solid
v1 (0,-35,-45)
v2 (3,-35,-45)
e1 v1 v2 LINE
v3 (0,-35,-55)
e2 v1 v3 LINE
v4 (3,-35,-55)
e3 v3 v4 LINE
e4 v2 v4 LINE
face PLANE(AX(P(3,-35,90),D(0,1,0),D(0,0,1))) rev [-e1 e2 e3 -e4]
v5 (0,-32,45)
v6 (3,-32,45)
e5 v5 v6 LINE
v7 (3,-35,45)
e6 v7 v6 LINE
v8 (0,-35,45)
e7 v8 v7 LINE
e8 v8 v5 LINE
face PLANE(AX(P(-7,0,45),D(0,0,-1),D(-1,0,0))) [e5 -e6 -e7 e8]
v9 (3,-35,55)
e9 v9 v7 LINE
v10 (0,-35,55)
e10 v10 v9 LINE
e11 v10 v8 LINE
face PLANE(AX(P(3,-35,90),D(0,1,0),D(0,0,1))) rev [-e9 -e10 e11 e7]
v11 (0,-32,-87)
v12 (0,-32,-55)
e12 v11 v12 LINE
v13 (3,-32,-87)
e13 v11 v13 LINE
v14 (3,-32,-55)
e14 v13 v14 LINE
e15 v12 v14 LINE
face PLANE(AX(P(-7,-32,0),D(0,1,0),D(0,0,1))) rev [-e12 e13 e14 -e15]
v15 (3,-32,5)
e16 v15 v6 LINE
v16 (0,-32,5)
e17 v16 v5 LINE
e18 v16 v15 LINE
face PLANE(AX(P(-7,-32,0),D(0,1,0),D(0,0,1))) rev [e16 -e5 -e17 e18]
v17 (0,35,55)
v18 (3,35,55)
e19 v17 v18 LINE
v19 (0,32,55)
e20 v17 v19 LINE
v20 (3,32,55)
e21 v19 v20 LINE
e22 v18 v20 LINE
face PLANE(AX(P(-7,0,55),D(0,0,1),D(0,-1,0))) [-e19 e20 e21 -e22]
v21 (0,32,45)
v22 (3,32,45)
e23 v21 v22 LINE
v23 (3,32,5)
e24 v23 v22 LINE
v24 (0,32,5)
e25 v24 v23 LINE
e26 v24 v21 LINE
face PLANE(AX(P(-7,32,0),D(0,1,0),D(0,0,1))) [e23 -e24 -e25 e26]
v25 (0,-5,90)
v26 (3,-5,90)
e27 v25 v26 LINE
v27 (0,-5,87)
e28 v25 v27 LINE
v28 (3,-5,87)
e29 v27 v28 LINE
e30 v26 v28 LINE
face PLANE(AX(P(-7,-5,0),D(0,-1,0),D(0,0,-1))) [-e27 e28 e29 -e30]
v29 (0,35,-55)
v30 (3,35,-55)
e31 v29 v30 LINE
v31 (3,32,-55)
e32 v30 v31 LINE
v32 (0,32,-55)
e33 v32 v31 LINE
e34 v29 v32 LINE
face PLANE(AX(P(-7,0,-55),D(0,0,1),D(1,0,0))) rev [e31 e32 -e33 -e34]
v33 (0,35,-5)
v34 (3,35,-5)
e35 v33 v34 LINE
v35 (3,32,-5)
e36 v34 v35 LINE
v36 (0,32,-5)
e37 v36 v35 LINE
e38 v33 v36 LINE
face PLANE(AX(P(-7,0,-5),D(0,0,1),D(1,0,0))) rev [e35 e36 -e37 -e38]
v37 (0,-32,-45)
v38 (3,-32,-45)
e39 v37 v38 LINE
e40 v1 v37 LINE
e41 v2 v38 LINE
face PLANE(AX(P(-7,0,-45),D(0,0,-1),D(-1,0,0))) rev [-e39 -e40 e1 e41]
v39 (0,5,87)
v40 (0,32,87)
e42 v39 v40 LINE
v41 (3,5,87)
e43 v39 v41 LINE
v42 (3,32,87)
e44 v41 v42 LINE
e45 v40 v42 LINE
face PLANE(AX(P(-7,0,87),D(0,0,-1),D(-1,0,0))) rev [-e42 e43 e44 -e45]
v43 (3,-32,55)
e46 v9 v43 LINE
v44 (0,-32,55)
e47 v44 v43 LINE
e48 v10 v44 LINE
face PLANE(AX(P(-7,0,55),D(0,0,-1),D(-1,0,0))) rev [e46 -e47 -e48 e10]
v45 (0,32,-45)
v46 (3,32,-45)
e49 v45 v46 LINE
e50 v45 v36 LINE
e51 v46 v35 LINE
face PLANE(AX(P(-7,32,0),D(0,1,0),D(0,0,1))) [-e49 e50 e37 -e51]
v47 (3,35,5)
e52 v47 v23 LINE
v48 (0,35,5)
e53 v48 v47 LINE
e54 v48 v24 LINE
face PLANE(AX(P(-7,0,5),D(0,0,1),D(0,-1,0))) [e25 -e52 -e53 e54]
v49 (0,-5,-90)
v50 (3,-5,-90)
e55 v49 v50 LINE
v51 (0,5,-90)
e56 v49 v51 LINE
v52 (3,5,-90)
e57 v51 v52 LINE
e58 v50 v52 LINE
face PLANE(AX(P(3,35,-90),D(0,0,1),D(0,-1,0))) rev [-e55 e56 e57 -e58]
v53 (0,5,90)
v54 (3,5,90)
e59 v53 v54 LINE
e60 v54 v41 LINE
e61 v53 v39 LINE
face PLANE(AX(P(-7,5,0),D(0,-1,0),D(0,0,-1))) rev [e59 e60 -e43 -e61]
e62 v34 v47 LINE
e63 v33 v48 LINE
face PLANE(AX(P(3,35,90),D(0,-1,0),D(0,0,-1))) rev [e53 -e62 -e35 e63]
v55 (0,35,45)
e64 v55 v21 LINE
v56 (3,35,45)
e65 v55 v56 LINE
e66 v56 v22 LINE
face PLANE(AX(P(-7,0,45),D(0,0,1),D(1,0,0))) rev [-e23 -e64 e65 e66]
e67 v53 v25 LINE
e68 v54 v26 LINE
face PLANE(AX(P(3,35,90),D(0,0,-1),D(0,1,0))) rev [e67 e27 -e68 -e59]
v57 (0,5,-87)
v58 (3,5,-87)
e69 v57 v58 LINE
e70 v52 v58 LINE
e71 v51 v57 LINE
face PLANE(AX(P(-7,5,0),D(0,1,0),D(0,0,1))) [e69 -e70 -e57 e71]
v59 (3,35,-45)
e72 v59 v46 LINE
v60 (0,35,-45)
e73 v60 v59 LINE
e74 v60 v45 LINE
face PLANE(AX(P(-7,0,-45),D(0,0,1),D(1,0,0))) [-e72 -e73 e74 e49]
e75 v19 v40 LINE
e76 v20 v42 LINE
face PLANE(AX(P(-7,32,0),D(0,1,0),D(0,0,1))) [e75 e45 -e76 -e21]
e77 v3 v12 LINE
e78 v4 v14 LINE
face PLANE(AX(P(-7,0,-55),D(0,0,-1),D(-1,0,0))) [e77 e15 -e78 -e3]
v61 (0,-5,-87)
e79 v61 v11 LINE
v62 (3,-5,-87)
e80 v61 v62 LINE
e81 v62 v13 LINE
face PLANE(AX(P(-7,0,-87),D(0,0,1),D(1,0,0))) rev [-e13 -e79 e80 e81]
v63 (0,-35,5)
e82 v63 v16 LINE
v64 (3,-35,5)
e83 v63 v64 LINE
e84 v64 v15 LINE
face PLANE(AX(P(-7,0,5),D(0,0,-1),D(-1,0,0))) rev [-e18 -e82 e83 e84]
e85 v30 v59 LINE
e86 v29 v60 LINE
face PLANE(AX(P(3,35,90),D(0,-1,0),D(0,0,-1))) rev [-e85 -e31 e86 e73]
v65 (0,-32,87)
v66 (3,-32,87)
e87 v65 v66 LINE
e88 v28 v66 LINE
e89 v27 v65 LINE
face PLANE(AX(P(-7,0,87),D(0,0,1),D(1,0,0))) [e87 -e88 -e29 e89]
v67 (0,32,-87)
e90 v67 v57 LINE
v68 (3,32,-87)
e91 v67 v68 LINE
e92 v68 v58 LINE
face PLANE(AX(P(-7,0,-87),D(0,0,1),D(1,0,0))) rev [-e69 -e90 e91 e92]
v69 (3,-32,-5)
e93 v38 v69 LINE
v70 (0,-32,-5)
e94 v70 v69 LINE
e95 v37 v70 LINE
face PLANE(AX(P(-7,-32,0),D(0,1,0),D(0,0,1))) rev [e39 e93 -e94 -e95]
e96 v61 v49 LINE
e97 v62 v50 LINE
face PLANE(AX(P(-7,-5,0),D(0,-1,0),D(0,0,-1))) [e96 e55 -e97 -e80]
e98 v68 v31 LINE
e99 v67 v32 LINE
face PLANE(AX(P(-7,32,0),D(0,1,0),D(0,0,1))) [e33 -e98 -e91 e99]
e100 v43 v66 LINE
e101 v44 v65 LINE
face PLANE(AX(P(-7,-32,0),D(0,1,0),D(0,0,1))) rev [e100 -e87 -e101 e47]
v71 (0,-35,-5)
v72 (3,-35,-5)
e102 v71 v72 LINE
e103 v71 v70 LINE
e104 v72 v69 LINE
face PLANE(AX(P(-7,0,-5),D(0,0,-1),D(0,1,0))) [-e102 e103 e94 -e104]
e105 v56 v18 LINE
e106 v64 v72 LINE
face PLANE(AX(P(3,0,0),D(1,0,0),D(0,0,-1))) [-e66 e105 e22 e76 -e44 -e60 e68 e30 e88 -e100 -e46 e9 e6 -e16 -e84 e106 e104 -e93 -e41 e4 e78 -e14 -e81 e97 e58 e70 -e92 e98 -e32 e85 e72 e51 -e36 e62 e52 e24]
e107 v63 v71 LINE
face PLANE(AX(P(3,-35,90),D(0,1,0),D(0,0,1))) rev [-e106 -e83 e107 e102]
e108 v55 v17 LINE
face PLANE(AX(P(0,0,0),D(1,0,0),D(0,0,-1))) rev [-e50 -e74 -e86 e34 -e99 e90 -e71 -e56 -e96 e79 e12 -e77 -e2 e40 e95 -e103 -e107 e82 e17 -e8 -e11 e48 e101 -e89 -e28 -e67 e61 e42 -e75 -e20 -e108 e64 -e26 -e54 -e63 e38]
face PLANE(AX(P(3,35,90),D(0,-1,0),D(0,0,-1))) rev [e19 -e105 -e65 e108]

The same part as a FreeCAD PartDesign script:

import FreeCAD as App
import Part
import Sketcher

V = App.Vector
Q = App.Units.Quantity


def add_polygon(sketch, points):
    """Adds a closed chain of lines whose ends are joined by coincident constraints."""
    first, n = sketch.GeometryCount, len(points)
    for a, b in zip(points, points[1:] + points[:1]):
        sketch.addGeometry(Part.LineSegment(App.Vector(*a, 0), App.Vector(*b, 0)), False)
    for i in range(n):
        sketch.addConstraint(Sketcher.Constraint("Coincident", first + i, 2, first + (i + 1) % n, 1))

doc = App.newDocument("Part")
body = doc.addObject("PartDesign::Body", "Body")

sketch1 = body.newObject("Sketcher::SketchObject", "Sketch")
sketch1.AttachmentSupport = (doc.getObject("YZ_Plane"), [""])
sketch1.MapMode = "FlatFace"
add_polygon(sketch1, [(35, 90), (-35, 90), (-35, -90), (35, -90)])
sketch1.addConstraint(Sketcher.Constraint("Horizontal", 0))
sketch1.addConstraint(Sketcher.Constraint("Vertical", 1))
sketch1.addConstraint(Sketcher.Constraint("Horizontal", 2))
sketch1.addConstraint(Sketcher.Constraint("Vertical", 3))
sketch1.addConstraint(Sketcher.Constraint("Symmetric", 0, 2, 2, 2, -1, 1))
sketch1.addConstraint(Sketcher.Constraint("DistanceX", 0, 2, 0, 1, Q("70 mm")))
sketch1.addConstraint(Sketcher.Constraint("DistanceY", 1, 2, 1, 1, Q("180 mm")))
pad1 = body.newObject("PartDesign::Pad", "Pad")
pad1.Profile = sketch1
pad1.Length = 3

sketch2 = body.newObject("Sketcher::SketchObject", "Sketch001")
sketch2.AttachmentSupport = (doc.getObject("YZ_Plane"), [""])
sketch2.MapMode = "FlatFace"
sketch2.AttachmentOffset = App.Placement(V(0, 0, 3), App.Rotation())
add_polygon(sketch2, [(-32, -87), (-32, -55), (-35, -55), (-35, -90), (-5, -90), (-5, -87)])
add_polygon(sketch2, [(-32, -5), (-35, -5), (-35, -45), (-32, -45)])
add_polygon(sketch2, [(-32, 45), (-35, 45), (-35, 5), (-32, 5)])
add_polygon(sketch2, [(-32, 55), (-32, 87), (-5, 87), (-5, 90), (-35, 90), (-35, 55)])
add_polygon(sketch2, [(5, 90), (5, 87), (32, 87), (32, 55), (35, 55), (35, 90)])
add_polygon(sketch2, [(35, 45), (32, 45), (32, 5), (35, 5)])
add_polygon(sketch2, [(35, -5), (32, -5), (32, -45), (35, -45)])
add_polygon(sketch2, [(32, -55), (32, -87), (5, -87), (5, -90), (35, -90), (35, -55)])
sketch2.addConstraint(Sketcher.Constraint("Vertical", 0))
sketch2.addConstraint(Sketcher.Constraint("Horizontal", 1))
sketch2.addConstraint(Sketcher.Constraint("Vertical", 2))
sketch2.addConstraint(Sketcher.Constraint("Horizontal", 3))
sketch2.addConstraint(Sketcher.Constraint("Vertical", 4))
sketch2.addConstraint(Sketcher.Constraint("Horizontal", 5))
sketch2.addConstraint(Sketcher.Constraint("Horizontal", 6))
sketch2.addConstraint(Sketcher.Constraint("Vertical", 7))
sketch2.addConstraint(Sketcher.Constraint("Horizontal", 8))
sketch2.addConstraint(Sketcher.Constraint("Vertical", 9))
sketch2.addConstraint(Sketcher.Constraint("Horizontal", 10))
sketch2.addConstraint(Sketcher.Constraint("Vertical", 11))
sketch2.addConstraint(Sketcher.Constraint("Horizontal", 12))
sketch2.addConstraint(Sketcher.Constraint("Vertical", 13))
sketch2.addConstraint(Sketcher.Constraint("Vertical", 14))
sketch2.addConstraint(Sketcher.Constraint("Horizontal", 15))
sketch2.addConstraint(Sketcher.Constraint("Vertical", 16))
sketch2.addConstraint(Sketcher.Constraint("Horizontal", 17))
sketch2.addConstraint(Sketcher.Constraint("Vertical", 18))
sketch2.addConstraint(Sketcher.Constraint("Horizontal", 19))
sketch2.addConstraint(Sketcher.Constraint("Vertical", 20))
sketch2.addConstraint(Sketcher.Constraint("Horizontal", 21))
sketch2.addConstraint(Sketcher.Constraint("Vertical", 22))
sketch2.addConstraint(Sketcher.Constraint("Horizontal", 23))
sketch2.addConstraint(Sketcher.Constraint("Vertical", 24))
sketch2.addConstraint(Sketcher.Constraint("Horizontal", 25))
sketch2.addConstraint(Sketcher.Constraint("Horizontal", 26))
sketch2.addConstraint(Sketcher.Constraint("Vertical", 27))
sketch2.addConstraint(Sketcher.Constraint("Horizontal", 28))
sketch2.addConstraint(Sketcher.Constraint("Vertical", 29))
sketch2.addConstraint(Sketcher.Constraint("Horizontal", 30))
sketch2.addConstraint(Sketcher.Constraint("Vertical", 31))
sketch2.addConstraint(Sketcher.Constraint("Horizontal", 32))
sketch2.addConstraint(Sketcher.Constraint("Vertical", 33))
sketch2.addConstraint(Sketcher.Constraint("Vertical", 34))
sketch2.addConstraint(Sketcher.Constraint("Horizontal", 35))
sketch2.addConstraint(Sketcher.Constraint("Vertical", 36))
sketch2.addConstraint(Sketcher.Constraint("Horizontal", 37))
sketch2.addConstraint(Sketcher.Constraint("Vertical", 38))
sketch2.addConstraint(Sketcher.Constraint("Horizontal", 39))
sketch2.addConstraint(Sketcher.Constraint("Symmetric", 4, 2, 20, 2, -1, 1))
sketch2.addConstraint(Sketcher.Constraint("Symmetric", 0, 2, 22, 2, -1, 1))
sketch2.addConstraint(Sketcher.Constraint("Symmetric", 2, 2, 24, 2, -1, 1))
sketch2.addConstraint(Sketcher.Constraint("Symmetric", 8, 2, 26, 2, -1, 1))
sketch2.addConstraint(Sketcher.Constraint("Symmetric", 6, 2, 28, 2, -1, 1))
sketch2.addConstraint(Sketcher.Constraint("Symmetric", 12, 2, 30, 2, -1, 1))
sketch2.addConstraint(Sketcher.Constraint("Symmetric", 10, 2, 32, 2, -1, 1))
sketch2.addConstraint(Sketcher.Constraint("Symmetric", 14, 2, 34, 2, -1, 1))
sketch2.addConstraint(Sketcher.Constraint("Symmetric", 16, 2, 36, 2, -1, 1))
sketch2.addConstraint(Sketcher.Constraint("Symmetric", 18, 2, 38, 2, -1, 1))
sketch2.addConstraint(Sketcher.Constraint("Symmetric", 15, 2, 20, 2, -2))
sketch2.addConstraint(Sketcher.Constraint("Symmetric", 19, 2, 22, 2, -2))
sketch2.addConstraint(Sketcher.Constraint("Symmetric", 17, 2, 24, 2, -2))
sketch2.addConstraint(Sketcher.Constraint("Symmetric", 13, 2, 26, 2, -2))
sketch2.addConstraint(Sketcher.Constraint("Symmetric", 11, 2, 28, 2, -2))
sketch2.addConstraint(Sketcher.Constraint("Vertical", 2, 2, 6, 2))
sketch2.addConstraint(Sketcher.Constraint("Vertical", 5, 2, 8, 2))
sketch2.addConstraint(Sketcher.Constraint("Equal", 39, 4))
sketch2.addConstraint(Sketcher.Constraint("DistanceX", 1, 2, 1, 1, Q("3 mm")))
sketch2.addConstraint(Sketcher.Constraint("DistanceX", 3, 1, 3, 2, Q("30 mm")))
sketch2.addConstraint(Sketcher.Constraint("DistanceY", 0, 1, 0, 2, Q("32 mm")))
sketch2.addConstraint(Sketcher.Constraint("DistanceY", 7, 2, 7, 1, Q("40 mm")))
sketch2.addConstraint(Sketcher.Constraint("DistanceX", 0, 2, -1, 1, Q("32 mm")))
sketch2.addConstraint(Sketcher.Constraint("DistanceY", 0, 2, -1, 1, Q("55 mm")))
sketch2.addConstraint(Sketcher.Constraint("DistanceY", 6, 2, -1, 1, Q("5 mm")))
pocket1 = body.newObject("PartDesign::Pocket", "Pocket")
pocket1.Profile = sketch2
pocket1.Length = 10

doc.recompute()
